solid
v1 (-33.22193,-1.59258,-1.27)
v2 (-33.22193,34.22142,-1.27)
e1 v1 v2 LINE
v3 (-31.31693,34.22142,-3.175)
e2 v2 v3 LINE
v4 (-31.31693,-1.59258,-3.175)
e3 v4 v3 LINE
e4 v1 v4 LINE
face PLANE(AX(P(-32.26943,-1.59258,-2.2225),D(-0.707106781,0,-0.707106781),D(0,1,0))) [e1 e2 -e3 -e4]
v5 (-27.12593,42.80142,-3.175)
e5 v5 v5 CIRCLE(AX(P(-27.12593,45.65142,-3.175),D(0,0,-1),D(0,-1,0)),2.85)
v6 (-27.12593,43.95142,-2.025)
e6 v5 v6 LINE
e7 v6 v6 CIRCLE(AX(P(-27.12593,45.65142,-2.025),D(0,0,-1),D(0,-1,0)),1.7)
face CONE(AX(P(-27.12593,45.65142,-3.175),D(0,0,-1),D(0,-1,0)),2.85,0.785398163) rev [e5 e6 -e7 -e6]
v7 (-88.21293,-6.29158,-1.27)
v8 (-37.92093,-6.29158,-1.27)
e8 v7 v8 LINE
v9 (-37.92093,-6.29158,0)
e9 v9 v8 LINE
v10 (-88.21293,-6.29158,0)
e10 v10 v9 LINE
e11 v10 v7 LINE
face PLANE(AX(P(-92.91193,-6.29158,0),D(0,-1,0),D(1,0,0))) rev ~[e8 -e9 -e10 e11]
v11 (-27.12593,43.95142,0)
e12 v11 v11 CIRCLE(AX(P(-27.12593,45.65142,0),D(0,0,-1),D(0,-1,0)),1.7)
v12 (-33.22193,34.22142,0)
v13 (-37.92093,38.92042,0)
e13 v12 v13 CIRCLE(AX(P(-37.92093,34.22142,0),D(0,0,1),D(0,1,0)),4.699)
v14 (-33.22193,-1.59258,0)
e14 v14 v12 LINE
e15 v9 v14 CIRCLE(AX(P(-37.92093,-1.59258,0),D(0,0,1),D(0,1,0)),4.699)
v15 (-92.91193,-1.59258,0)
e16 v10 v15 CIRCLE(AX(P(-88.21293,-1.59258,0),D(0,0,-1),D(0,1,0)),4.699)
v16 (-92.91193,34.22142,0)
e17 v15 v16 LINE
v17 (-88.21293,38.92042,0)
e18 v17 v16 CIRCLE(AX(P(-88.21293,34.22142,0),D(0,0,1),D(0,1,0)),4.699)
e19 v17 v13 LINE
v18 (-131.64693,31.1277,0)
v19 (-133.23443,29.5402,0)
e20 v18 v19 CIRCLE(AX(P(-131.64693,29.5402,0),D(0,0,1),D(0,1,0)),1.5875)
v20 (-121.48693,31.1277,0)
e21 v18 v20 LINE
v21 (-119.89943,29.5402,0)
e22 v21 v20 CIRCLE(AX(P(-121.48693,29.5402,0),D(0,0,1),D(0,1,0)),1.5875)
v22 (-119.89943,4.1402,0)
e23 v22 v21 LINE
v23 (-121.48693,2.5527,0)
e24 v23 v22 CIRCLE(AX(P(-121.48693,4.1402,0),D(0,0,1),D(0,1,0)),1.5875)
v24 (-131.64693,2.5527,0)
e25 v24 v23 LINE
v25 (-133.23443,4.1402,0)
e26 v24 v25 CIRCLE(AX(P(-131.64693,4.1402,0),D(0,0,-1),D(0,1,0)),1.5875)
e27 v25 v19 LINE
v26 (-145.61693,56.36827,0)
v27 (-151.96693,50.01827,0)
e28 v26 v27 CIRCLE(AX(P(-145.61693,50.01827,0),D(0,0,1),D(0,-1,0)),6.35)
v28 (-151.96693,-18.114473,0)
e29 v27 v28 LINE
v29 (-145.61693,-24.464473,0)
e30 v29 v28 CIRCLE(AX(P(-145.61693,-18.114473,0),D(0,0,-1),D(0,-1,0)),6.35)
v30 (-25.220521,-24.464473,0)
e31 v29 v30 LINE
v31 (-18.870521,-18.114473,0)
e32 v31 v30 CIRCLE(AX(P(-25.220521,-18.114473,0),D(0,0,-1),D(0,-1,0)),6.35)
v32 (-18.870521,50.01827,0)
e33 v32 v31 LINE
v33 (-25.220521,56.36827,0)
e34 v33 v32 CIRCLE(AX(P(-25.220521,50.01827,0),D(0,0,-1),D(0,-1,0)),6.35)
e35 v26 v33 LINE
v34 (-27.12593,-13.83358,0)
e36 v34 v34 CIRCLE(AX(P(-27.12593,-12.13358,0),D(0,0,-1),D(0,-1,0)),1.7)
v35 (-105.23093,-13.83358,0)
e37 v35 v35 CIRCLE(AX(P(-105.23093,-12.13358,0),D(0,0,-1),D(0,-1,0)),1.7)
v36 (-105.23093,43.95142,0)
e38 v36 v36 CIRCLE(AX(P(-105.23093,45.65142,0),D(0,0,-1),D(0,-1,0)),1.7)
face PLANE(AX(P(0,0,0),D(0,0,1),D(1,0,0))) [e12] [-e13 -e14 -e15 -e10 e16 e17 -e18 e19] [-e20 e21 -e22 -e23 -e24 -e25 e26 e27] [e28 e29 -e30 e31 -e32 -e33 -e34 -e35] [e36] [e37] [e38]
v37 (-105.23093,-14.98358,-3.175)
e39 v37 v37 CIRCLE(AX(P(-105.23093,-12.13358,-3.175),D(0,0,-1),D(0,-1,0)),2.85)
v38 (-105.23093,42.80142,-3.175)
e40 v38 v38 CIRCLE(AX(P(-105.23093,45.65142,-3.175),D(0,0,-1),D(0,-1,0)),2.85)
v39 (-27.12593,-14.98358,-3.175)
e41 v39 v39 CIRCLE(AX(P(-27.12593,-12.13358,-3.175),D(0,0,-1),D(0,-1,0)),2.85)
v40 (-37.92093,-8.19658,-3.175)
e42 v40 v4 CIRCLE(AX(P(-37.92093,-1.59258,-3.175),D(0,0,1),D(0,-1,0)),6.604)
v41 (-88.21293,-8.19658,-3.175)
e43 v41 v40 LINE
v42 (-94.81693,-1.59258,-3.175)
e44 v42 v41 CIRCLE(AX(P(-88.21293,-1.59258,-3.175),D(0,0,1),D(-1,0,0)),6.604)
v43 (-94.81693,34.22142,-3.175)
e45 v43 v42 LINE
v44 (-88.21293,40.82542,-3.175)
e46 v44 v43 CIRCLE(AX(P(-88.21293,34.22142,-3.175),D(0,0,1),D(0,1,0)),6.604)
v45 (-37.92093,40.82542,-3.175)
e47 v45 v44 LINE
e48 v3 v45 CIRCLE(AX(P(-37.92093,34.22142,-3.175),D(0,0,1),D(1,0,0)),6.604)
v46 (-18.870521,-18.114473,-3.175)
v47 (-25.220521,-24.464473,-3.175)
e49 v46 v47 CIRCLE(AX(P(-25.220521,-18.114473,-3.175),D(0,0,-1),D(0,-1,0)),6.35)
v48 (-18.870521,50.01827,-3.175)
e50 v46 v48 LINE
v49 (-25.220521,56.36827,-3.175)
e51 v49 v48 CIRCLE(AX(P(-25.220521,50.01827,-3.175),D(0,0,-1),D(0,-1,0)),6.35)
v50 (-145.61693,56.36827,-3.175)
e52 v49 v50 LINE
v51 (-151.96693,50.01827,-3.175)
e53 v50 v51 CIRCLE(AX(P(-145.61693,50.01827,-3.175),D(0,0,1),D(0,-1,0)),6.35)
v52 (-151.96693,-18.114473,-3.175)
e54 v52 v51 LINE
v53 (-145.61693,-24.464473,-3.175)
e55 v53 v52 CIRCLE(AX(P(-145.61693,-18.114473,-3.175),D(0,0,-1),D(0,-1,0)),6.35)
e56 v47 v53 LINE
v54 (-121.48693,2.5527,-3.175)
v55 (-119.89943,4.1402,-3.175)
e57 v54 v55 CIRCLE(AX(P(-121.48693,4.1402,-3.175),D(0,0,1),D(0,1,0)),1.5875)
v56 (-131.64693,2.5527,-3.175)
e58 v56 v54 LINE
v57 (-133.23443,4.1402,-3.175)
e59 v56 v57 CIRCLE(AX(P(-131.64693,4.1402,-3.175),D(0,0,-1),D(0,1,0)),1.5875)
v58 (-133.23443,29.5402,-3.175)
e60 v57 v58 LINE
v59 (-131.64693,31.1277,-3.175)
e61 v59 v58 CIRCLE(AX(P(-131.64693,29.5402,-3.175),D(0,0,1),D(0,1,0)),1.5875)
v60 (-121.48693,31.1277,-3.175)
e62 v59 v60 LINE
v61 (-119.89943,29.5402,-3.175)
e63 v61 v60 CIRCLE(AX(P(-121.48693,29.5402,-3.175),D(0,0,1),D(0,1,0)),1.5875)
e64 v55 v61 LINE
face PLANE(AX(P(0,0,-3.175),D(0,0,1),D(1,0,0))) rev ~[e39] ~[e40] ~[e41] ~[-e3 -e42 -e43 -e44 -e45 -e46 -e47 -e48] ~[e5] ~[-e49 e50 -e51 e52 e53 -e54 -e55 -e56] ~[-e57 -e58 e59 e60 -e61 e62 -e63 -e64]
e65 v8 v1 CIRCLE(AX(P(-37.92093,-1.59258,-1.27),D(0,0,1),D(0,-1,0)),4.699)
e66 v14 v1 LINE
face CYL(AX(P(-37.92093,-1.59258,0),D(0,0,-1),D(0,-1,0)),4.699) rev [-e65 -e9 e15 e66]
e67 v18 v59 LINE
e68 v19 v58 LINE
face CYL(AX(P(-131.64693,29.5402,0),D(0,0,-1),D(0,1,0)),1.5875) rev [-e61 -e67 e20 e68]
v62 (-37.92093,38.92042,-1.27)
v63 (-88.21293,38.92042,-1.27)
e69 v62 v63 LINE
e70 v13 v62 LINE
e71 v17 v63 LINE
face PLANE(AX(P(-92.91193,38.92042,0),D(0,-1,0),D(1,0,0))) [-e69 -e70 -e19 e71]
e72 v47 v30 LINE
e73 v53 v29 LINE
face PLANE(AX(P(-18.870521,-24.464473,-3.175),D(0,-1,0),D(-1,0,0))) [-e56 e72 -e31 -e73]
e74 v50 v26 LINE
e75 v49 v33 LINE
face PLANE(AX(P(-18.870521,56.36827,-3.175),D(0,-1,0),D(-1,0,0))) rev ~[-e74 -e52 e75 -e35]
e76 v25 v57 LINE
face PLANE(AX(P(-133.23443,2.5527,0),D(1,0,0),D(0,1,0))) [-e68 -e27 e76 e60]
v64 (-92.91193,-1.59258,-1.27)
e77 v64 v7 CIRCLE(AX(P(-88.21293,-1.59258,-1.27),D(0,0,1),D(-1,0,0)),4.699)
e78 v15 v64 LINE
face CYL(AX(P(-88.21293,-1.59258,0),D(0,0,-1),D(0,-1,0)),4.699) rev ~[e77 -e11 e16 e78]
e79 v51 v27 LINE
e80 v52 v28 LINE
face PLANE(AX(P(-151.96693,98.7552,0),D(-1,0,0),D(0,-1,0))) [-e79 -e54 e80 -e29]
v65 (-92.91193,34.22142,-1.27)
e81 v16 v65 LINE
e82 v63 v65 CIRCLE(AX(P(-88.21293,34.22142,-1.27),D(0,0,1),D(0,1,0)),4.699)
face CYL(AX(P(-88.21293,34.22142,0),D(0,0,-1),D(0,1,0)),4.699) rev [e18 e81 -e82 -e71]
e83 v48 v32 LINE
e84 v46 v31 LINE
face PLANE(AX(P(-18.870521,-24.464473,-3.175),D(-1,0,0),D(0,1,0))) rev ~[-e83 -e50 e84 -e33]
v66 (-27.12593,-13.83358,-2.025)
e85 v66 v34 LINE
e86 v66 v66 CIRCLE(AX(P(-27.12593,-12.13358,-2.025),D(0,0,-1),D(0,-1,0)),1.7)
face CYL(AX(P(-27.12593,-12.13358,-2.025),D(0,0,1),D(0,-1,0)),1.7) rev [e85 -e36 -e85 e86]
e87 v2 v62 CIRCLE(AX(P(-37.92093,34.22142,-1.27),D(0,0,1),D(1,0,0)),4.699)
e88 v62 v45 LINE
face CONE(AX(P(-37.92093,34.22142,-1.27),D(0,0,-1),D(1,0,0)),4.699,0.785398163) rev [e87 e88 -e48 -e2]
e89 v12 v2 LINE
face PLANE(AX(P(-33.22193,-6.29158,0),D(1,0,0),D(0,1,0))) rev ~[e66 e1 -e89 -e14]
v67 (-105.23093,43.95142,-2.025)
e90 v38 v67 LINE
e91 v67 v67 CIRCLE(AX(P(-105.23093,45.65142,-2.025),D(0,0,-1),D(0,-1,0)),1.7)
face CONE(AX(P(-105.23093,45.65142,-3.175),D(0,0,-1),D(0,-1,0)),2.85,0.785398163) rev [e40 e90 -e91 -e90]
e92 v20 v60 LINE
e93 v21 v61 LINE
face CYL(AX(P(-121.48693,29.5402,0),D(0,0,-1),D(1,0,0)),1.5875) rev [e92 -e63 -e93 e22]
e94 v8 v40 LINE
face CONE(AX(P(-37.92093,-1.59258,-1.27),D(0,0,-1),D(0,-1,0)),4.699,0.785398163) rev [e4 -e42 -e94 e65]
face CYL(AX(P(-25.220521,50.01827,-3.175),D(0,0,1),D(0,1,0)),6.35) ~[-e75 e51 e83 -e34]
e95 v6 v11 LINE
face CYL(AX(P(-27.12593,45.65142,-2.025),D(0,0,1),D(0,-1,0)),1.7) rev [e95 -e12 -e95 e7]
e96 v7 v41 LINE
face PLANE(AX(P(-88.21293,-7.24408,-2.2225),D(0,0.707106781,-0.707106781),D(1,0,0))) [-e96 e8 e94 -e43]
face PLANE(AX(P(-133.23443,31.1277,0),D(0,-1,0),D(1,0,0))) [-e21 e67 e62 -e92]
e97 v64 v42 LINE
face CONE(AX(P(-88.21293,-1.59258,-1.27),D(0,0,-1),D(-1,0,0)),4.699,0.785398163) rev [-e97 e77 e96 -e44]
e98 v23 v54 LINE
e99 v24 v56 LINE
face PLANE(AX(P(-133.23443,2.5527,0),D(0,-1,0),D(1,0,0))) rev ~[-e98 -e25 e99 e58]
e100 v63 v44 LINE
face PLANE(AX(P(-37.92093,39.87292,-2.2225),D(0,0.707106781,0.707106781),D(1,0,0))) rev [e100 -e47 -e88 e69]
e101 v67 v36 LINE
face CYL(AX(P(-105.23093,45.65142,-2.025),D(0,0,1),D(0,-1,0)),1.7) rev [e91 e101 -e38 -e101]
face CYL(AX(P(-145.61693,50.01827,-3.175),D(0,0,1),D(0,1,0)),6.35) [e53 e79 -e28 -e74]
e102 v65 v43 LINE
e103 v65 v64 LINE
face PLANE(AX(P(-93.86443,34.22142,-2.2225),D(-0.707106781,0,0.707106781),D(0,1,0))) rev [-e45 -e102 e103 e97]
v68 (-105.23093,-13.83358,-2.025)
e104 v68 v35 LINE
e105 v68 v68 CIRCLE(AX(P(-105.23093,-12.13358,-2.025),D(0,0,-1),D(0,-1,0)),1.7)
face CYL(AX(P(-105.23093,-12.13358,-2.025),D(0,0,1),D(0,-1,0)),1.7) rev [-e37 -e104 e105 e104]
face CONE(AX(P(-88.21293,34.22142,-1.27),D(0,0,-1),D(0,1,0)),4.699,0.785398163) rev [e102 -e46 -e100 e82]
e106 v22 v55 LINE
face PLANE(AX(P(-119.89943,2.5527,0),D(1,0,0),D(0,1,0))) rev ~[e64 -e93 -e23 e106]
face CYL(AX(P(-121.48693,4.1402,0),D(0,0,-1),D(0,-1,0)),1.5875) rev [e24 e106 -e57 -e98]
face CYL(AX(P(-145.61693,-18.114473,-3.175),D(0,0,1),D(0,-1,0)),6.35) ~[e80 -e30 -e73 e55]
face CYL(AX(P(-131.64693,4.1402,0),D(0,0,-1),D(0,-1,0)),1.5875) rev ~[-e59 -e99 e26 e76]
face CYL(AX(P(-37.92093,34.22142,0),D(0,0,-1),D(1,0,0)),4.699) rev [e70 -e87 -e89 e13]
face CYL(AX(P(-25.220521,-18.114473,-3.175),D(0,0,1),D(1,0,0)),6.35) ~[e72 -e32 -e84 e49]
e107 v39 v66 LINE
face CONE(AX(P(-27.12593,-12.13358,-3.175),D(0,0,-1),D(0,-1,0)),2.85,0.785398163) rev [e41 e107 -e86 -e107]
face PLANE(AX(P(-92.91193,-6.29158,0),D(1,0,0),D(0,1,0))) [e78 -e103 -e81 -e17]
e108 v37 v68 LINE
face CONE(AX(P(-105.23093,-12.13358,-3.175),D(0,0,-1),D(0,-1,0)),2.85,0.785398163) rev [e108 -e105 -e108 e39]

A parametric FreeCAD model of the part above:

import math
import FreeCAD as App
import Part
import Sketcher
Q = App.Units.Quantity


def edges_at(feature, points):
    """Names of the edges that pass closest to the given points."""
    edges = feature.Shape.Edges
    near = lambda p: min(range(len(edges)), key=lambda i: edges[i].distToShape(Part.Vertex(*p))[0])
    return sorted({f"Edge{near(p) + 1}" for p in points})


def add_polygon(sketch, points):
    """Adds a closed chain of lines whose ends are joined by coincident constraints."""
    first, n = sketch.GeometryCount, len(points)
    for a, b in zip(points, points[1:] + points[:1]):
        sketch.addGeometry(Part.LineSegment(App.Vector(*a, 0), App.Vector(*b, 0)), False)
    for i in range(n):
        sketch.addConstraint(Sketcher.Constraint("Coincident", first + i, 2, first + (i + 1) % n, 1))

doc = App.newDocument("Part")
body = doc.addObject("PartDesign::Body", "Body")

# Sketch on XY plane
sketch1 = body.newObject("Sketcher::SketchObject", "Sketch")
sketch1.AttachmentSupport = (doc.getObject("XY_Plane"), [""])
sketch1.MapMode = "FlatFace"
sketch1.addGeometry(Part.LineSegment(App.Vector(-151.96693, 98.7552, 0), App.Vector(-151.96693, -98.7552, 0)), False)
sketch1.addGeometry(Part.ArcOfCircle(Part.Circle(App.Vector(-135.45693, -98.7552, 0), App.Vector(0, 0, 1), 16.51), math.radians(-180), math.radians(-90)), False)
sketch1.addGeometry(Part.LineSegment(App.Vector(-135.45693, -115.2652, 0), App.Vector(135.45693, -115.2652, 0)), False)
sketch1.addGeometry(Part.ArcOfCircle(Part.Circle(App.Vector(135.45693, -98.7552, 0), App.Vector(0, 0, 1), 16.51), math.radians(-90), math.radians(0)), False)
sketch1.addGeometry(Part.LineSegment(App.Vector(151.96693, -98.7552, 0), App.Vector(151.96693, 98.7552, 0)), False)
sketch1.addGeometry(Part.ArcOfCircle(Part.Circle(App.Vector(135.45693, 98.7552, 0), App.Vector(0, 0, 1), 16.51), math.radians(0), math.radians(90)), False)
sketch1.addGeometry(Part.LineSegment(App.Vector(135.45693, 115.2652, 0), App.Vector(-135.45693, 115.2652, 0)), False)
sketch1.addGeometry(Part.ArcOfCircle(Part.Circle(App.Vector(-135.45693, 98.7552, 0), App.Vector(0, 0, 1), 16.51), math.radians(90), math.radians(180)), False)
sketch1.addConstraint(Sketcher.Constraint("Tangent", 0, 2, 1, 1))
sketch1.addConstraint(Sketcher.Constraint("Tangent", 1, 2, 2, 1))
sketch1.addConstraint(Sketcher.Constraint("Tangent", 2, 2, 3, 1))
sketch1.addConstraint(Sketcher.Constraint("Tangent", 3, 2, 4, 1))
sketch1.addConstraint(Sketcher.Constraint("Tangent", 4, 2, 5, 1))
sketch1.addConstraint(Sketcher.Constraint("Tangent", 5, 2, 6, 1))
sketch1.addConstraint(Sketcher.Constraint("Tangent", 6, 2, 7, 1))
sketch1.addConstraint(Sketcher.Constraint("Tangent", 7, 2, 0, 1))
sketch1.addConstraint(Sketcher.Constraint("Vertical", 0))
sketch1.addConstraint(Sketcher.Constraint("Horizontal", 2))
sketch1.addConstraint(Sketcher.Constraint("Vertical", 4))
sketch1.addConstraint(Sketcher.Constraint("Horizontal", 6))
sketch1.addConstraint(Sketcher.Constraint("Equal", 1, 3))
sketch1.addConstraint(Sketcher.Constraint("Equal", 3, 5))
sketch1.addConstraint(Sketcher.Constraint("Equal", 5, 7))
sketch1.addConstraint(Sketcher.Constraint("Symmetric", 1, 3, 5, 3, -1, 1))
sketch1.addConstraint(Sketcher.Constraint("Radius", 1, Q("0.65 in")))
sketch1.addConstraint(Sketcher.Constraint("DistanceY", 0, 2, 0, 1, Q("7.776 in")))
sketch1.addConstraint(Sketcher.Constraint("DistanceX", 2, 1, 2, 2, Q("10.6659 in")))
pad1 = body.newObject("PartDesign::Pad", "Pad")
pad1.Profile = sketch1
pad1.Length = Q("0.125 in")
pad1.Reversed = True

# Sketch on YZ plane
sketch2 = body.newObject("Sketcher::SketchObject", "Sketch001")
sketch2.AttachmentSupport = (doc.getObject("YZ_Plane"), [""])
sketch2.MapMode = "FlatFace"
sketch2.AttachmentOffset = App.Placement(App.Vector(0, 0, 3.98 * 25.4), App.Rotation())
add_polygon(sketch2, [(104.648, -3.175), (104.648, 0), (102.49535, 0), (102.49535, -2.157298), (101.2825, -3.175)])  # lines 0-4
sketch2.addGeometry(Part.LineSegment(App.Vector(104.648, 0, 0), App.Vector(104.648, -3.175, 0)), True)  # axis
sketch2.addConstraint(Sketcher.Constraint("Vertical", 0))
sketch2.addConstraint(Sketcher.Constraint("Horizontal", 1))
sketch2.addConstraint(Sketcher.Constraint("Vertical", 2))
sketch2.addConstraint(Sketcher.Constraint("Horizontal", 4))
sketch2.addConstraint(Sketcher.Constraint("Vertical", 5))
sketch2.addConstraint(Sketcher.Constraint("Coincident", 5, 1, 0, 2))
sketch2.addConstraint(Sketcher.Constraint("PointOnObject", 0, 2, -1))
sketch2.addConstraint(Sketcher.Constraint("Horizontal", 3, 2, 5, 2))
sketch2.addConstraint(Sketcher.Constraint("Angle", 3, Q("-140 deg")))
sketch2.addConstraint(Sketcher.Constraint("DistanceY", 0, 1, 0, 2, Q("0.125 in")))
sketch2.addConstraint(Sketcher.Constraint("DistanceX", -1, 1, 0, 2, Q("4.12 in")))
sketch2.addConstraint(Sketcher.Constraint("DistanceX", 4, 1, 4, 2, Q("0.1325 in")))
sketch2.addConstraint(Sketcher.Constraint("DistanceY", 2, 2, 2, 1, 2.157298))
groove = body.newObject("PartDesign::Groove", "Groove")
groove.Profile = sketch2
groove.ReferenceAxis = (sketch2, ["Axis0"])
groove.Angle = 360
doc.recompute()

linearpattern = body.newObject("PartDesign::LinearPattern", "LinearPattern")
linearpattern.Originals = [groove]
linearpattern.Direction = (doc.getObject("X_Axis"), [""])
linearpattern.Mode = "offset"
linearpattern.Offset = Q("7.96 in")
linearpattern.Occurrences = 2
linearpattern.Reversed = True
body.Tip = linearpattern
doc.recompute()

datumline = body.newObject("PartDesign::Line", "DatumLine")
datumline.Placement = App.Placement(App.Vector(0, 0, 0), App.Rotation(App.Vector(0, 0, 1), App.Vector(-0.985857411, -0.167586294, 0)))
linearpattern2 = body.newObject("PartDesign::LinearPattern", "LinearPattern001")
linearpattern2.Originals = [groove]
linearpattern2.Direction = (datumline, [""])
linearpattern2.Mode = "offset"
linearpattern2.Offset = 245.533205
linearpattern2.Occurrences = 2
body.Tip = linearpattern2
doc.recompute()

datumline2 = body.newObject("PartDesign::Line", "DatumLine001")
datumline2.Placement = App.Placement(App.Vector(0, 0, 0), App.Rotation(App.Vector(0, 0, 1), App.Vector(-0.821290047, -0.570510875, 0)))
linearpattern3 = body.newObject("PartDesign::LinearPattern", "LinearPattern002")
linearpattern3.Originals = [groove]
linearpattern3.Direction = (datumline2, [""])
linearpattern3.Mode = "offset"
linearpattern3.Offset = 294.732331
linearpattern3.Occurrences = 2
body.Tip = linearpattern3
doc.recompute()

linearpattern4 = body.newObject("PartDesign::LinearPattern", "LinearPattern003")
linearpattern4.Originals = [groove]
linearpattern4.Direction = (doc.getObject("Y_Axis"), [""])
linearpattern4.Mode = "offset"
linearpattern4.Offset = Q("8.24 in")
linearpattern4.Occurrences = 2
linearpattern4.Reversed = True
body.Tip = linearpattern4
doc.recompute()

datumline3 = body.newObject("PartDesign::Line", "DatumLine002")
datumline3.Placement = App.Placement(App.Vector(0, 0, 0), App.Rotation(App.Vector(0, 0, 1), App.Vector(0.230752413, -0.973012499, 0)))
linearpattern5 = body.newObject("PartDesign::LinearPattern", "LinearPattern004")
linearpattern5.Originals = [groove]
linearpattern5.Direction = (datumline3, [""])
linearpattern5.Mode = "offset"
linearpattern5.Offset = 172.811757
linearpattern5.Occurrences = 2
body.Tip = linearpattern5
doc.recompute()

datumline4 = body.newObject("PartDesign::Line", "DatumLine003")
datumline4.Placement = App.Placement(App.Vector(0, 0, 0), App.Rotation(App.Vector(0, 0, 1), App.Vector(0.695926692, -0.718112832, 0)))
linearpattern6 = body.newObject("PartDesign::LinearPattern", "LinearPattern005")
linearpattern6.Originals = [groove]
linearpattern6.Direction = (datumline4, [""])
linearpattern6.Mode = "offset"
linearpattern6.Offset = 57.300188
linearpattern6.Occurrences = 2
body.Tip = linearpattern6
doc.recompute()

datumline5 = body.newObject("PartDesign::Line", "DatumLine004")
datumline5.Placement = App.Placement(App.Vector(0, 0, 0), App.Rotation(App.Vector(0, 0, 1), App.Vector(-0.694781413, -0.71922096, 0)))
linearpattern7 = body.newObject("PartDesign::LinearPattern", "LinearPattern006")
linearpattern7.Originals = [groove]
linearpattern7.Direction = (datumline5, [""])
linearpattern7.Mode = "offset"
linearpattern7.Offset = 291.003755
linearpattern7.Occurrences = 2
body.Tip = linearpattern7
doc.recompute()

datumline6 = body.newObject("PartDesign::Line", "DatumLine005")
datumline6.Placement = App.Placement(App.Vector(0, 0, 0), App.Rotation(App.Vector(0, 0, 1), App.Vector(-0.434932419, -0.900463098, 0)))
linearpattern8 = body.newObject("PartDesign::LinearPattern", "LinearPattern007")
linearpattern8.Originals = [groove]
linearpattern8.Direction = (datumline6, [""])
linearpattern8.Mode = "offset"
linearpattern8.Offset = 232.431513
linearpattern8.Occurrences = 2
body.Tip = linearpattern8
doc.recompute()

linearpattern9 = body.newObject("PartDesign::LinearPattern", "LinearPattern008")
linearpattern9.Originals = [groove]
linearpattern9.Direction = (doc.getObject("X_Axis"), [""])
linearpattern9.Mode = "offset"
linearpattern9.Offset = Q("3.98 in")
linearpattern9.Occurrences = 2
linearpattern9.Reversed = True
body.Tip = linearpattern9

# Sketch on XY plane
sketch3 = body.newObject("Sketcher::SketchObject", "Sketch002")
sketch3.AttachmentSupport = (doc.getObject("XY_Plane"), [""])
sketch3.MapMode = "FlatFace"
sketch3.addGeometry(Part.Circle(App.Vector(104.26573, 42.164, 0), App.Vector(0, 0, 1), 24.765), False)
sketch3.addConstraint(Sketcher.Constraint("Diameter", 0, Q("1.95 in")))
sketch3.addConstraint(Sketcher.Constraint("DistanceY", -1, 1, 0, 3, Q("1.66 in")))
sketch3.addConstraint(Sketcher.Constraint("DistanceX", -1, 1, 0, 3, 104.26573))
pocket1 = body.newObject("PartDesign::Pocket", "Pocket")
pocket1.Profile = sketch3
pocket1.Type = "ThroughAll"

# Sketch on XY plane
sketch4 = body.newObject("Sketcher::SketchObject", "Sketch003")
sketch4.AttachmentSupport = (doc.getObject("XY_Plane"), [""])
sketch4.MapMode = "FlatFace"
add_polygon(sketch4, [(-92.91193, 38.92042), (-92.91193, -6.29158), (-33.22193, -6.29158), (-33.22193, 38.92042)])  # lines 0-3
sketch4.addConstraint(Sketcher.Constraint("Vertical", 0))
sketch4.addConstraint(Sketcher.Constraint("Horizontal", 1))
sketch4.addConstraint(Sketcher.Constraint("Vertical", 2))
sketch4.addConstraint(Sketcher.Constraint("Horizontal", 3))
sketch4.addConstraint(Sketcher.Constraint("DistanceX", 1, 1, 1, 2, Q("2.35 in")))
sketch4.addConstraint(Sketcher.Constraint("DistanceY", 0, 2, 0, 1, Q("1.78 in")))
sketch4.addConstraint(Sketcher.Constraint("DistanceY", 0, 2, -1, 1, Q("0.2477 in")))
sketch4.addConstraint(Sketcher.Constraint("DistanceX", 0, 2, -1, 1, 92.91193))
pocket2 = body.newObject("PartDesign::Pocket", "Pocket001")
pocket2.Profile = sketch4
pocket2.Type = "ThroughAll"
doc.recompute()

fillet = body.newObject("PartDesign::Fillet", "Fillet")
fillet.Base = (pocket2, edges_at(pocket2, [
    (-92.912, -6.292, -1.587),
    (-92.912, 38.92, -1.587),
    (-33.222, 38.92, -1.587),
    (-33.222, -6.292, -1.587),
]))
fillet.Radius = Q("0.185 in")
doc.recompute()

chamfer = body.newObject("PartDesign::Chamfer", "Chamfer")
chamfer.Base = (fillet, edges_at(fillet, [
    (-33.222, 16.314, -3.175),
    (-63.067, -6.292, -3.175),
    (-92.912, 16.314, -3.175),
    (-63.067, 38.92, -3.175),
    (-34.598, -4.915, -3.175),
    (-91.536, -4.915, -3.175),
    (-91.536, 37.544, -3.175),
    (-34.598, 37.544, -3.175),
]))
chamfer.Size = Q("0.075 in")

# Sketch on YZ plane
sketch5 = body.newObject("Sketcher::SketchObject", "Sketch004")
sketch5.AttachmentSupport = (doc.getObject("YZ_Plane"), [""])
sketch5.MapMode = "FlatFace"
sketch5.AttachmentOffset = App.Placement(App.Vector(0, 0, 79.570026), App.Rotation())
add_polygon(sketch5, [(66.859704, -3.175), (66.859704, 0), (65.059704, 0), (65.059704, -2.125), (64.009704, -3.175)])  # lines 0-4
sketch5.addGeometry(Part.LineSegment(App.Vector(66.859704, 0, 0), App.Vector(66.859704, -3.175, 0)), True)  # axis
sketch5.addConstraint(Sketcher.Constraint("Vertical", 0))
sketch5.addConstraint(Sketcher.Constraint("Horizontal", 1))
sketch5.addConstraint(Sketcher.Constraint("Vertical", 2))
sketch5.addConstraint(Sketcher.Constraint("Horizontal", 4))
sketch5.addConstraint(Sketcher.Constraint("Vertical", 5))
sketch5.addConstraint(Sketcher.Constraint("Coincident", 5, 1, 0, 2))
sketch5.addConstraint(Sketcher.Constraint("PointOnObject", 0, 2, -1))
sketch5.addConstraint(Sketcher.Constraint("Horizontal", 3, 2, 5, 2))
sketch5.addConstraint(Sketcher.Constraint("Angle", 3, Q("-135 deg")))
sketch5.addConstraint(Sketcher.Constraint("DistanceY", 0, 1, 0, 2, Q("0.125 in")))
sketch5.addConstraint(Sketcher.Constraint("DistanceX", 1, 2, 1, 1, 1.8))
sketch5.addConstraint(Sketcher.Constraint("DistanceX", 4, 1, 4, 2, 2.85))
sketch5.addConstraint(Sketcher.Constraint("DistanceX", -1, 1, 0, 2, 66.859704))
groove2 = body.newObject("PartDesign::Groove", "Groove001")
groove2.Profile = sketch5
groove2.ReferenceAxis = (sketch5, ["Axis0"])
groove2.Angle = 360
doc.recompute()

linearpattern10 = body.newObject("PartDesign::LinearPattern", "LinearPattern009")
linearpattern10.Originals = [groove2]
linearpattern10.Direction = (doc.getObject("X_Axis"), [""])
linearpattern10.Mode = "offset"
linearpattern10.Offset = 49.391409
linearpattern10.Occurrences = 2
body.Tip = linearpattern10
doc.recompute()

datumline7 = body.newObject("PartDesign::Line", "DatumLine006")
datumline7.Placement = App.Placement(App.Vector(0, 0, 0), App.Rotation(App.Vector(0, 0, 1), App.Vector(0.707106781, -0.707106781, 0)))
linearpattern11 = body.newObject("PartDesign::LinearPattern", "LinearPattern010")
linearpattern11.Originals = [groove2]
linearpattern11.Direction = (datumline7, [""])
linearpattern11.Mode = "offset"
linearpattern11.Offset = Q("2.75 in")
linearpattern11.Occurrences = 2
body.Tip = linearpattern11
doc.recompute()

linearpattern12 = body.newObject("PartDesign::LinearPattern", "LinearPattern011")
linearpattern12.Originals = [groove2]
linearpattern12.Direction = (doc.getObject("Y_Axis"), [""])
linearpattern12.Mode = "offset"
linearpattern12.Offset = 49.391409
linearpattern12.Occurrences = 2
linearpattern12.Reversed = True
body.Tip = linearpattern12

# Sketch on XY plane
sketch6 = body.newObject("Sketcher::SketchObject", "Sketch005")
sketch6.AttachmentSupport = (doc.getObject("XY_Plane"), [""])
sketch6.MapMode = "FlatFace"
sketch6.AttachmentOffset = App.Placement(App.Vector(0, 0, -0.125 * 25.4), App.Rotation())
sketch6.addGeometry(Part.Circle(App.Vector(-17.67693, -38.5952, 0), App.Vector(0, 0, 1), 1.8), False)
sketch6.addGeometry(Part.Circle(App.Vector(-117.67693, -38.5952, 0), App.Vector(0, 0, 1), 1.8), False)
sketch6.addGeometry(Part.Circle(App.Vector(-117.67693, -88.5952, 0), App.Vector(0, 0, 1), 1.8), False)
sketch6.addGeometry(Part.Circle(App.Vector(-17.67693, -88.5952, 0), App.Vector(0, 0, 1), 1.8), False)
sketch6.addConstraint(Sketcher.Constraint("Equal", 0, 1))
sketch6.addConstraint(Sketcher.Constraint("Equal", 1, 2))
sketch6.addConstraint(Sketcher.Constraint("Equal", 2, 3))
sketch6.addConstraint(Sketcher.Constraint("Horizontal", 0, 3, 1, 3))
sketch6.addConstraint(Sketcher.Constraint("Horizontal", 2, 3, 3, 3))
sketch6.addConstraint(Sketcher.Constraint("Vertical", 1, 3, 2, 3))
sketch6.addConstraint(Sketcher.Constraint("Vertical", 0, 3, 3, 3))
sketch6.addConstraint(Sketcher.Constraint("Diameter", 0, 3.6))
sketch6.addConstraint(Sketcher.Constraint("DistanceY", 2, 3, -1, 1, Q("3.488 in")))
sketch6.addConstraint(Sketcher.Constraint("DistanceY", 0, 3, -1, 1, 38.5952))
sketch6.addConstraint(Sketcher.Constraint("DistanceX", 1, 3, 0, 3, 100.0))
sketch6.addConstraint(Sketcher.Constraint("DistanceX", 0, 3, -1, 1, 17.67693))
doc.recompute()
hole = body.newObject("PartDesign::Hole", "Hole")
hole.Profile = sketch6
hole.ThreadType = "None"
hole.Diameter = 3.6
hole.DepthType = "ThroughAll"
hole.HoleCutType = "Countersink"
hole.HoleCutDiameter = 5.7
hole.HoleCutCountersinkAngle = 90
hole.Reversed = True

# Sketch on YZ plane
sketch7 = body.newObject("Sketcher::SketchObject", "Sketch006")
sketch7.AttachmentSupport = (doc.getObject("YZ_Plane"), [""])
sketch7.MapMode = "FlatFace"
sketch7.AttachmentOffset = App.Placement(App.Vector(0, 0, 25.25193), App.Rotation())
add_polygon(sketch7, [(-75.5297, -3.175), (-75.5297, 0), (-77.3297, 0), (-77.3297, -2.125), (-78.3797, -3.175)])  # lines 0-4
sketch7.addGeometry(Part.LineSegment(App.Vector(-75.5297, 0, 0), App.Vector(-75.5297, -3.175, 0)), True)  # axis
sketch7.addConstraint(Sketcher.Constraint("Vertical", 0))
sketch7.addConstraint(Sketcher.Constraint("Horizontal", 1))
sketch7.addConstraint(Sketcher.Constraint("Vertical", 2))
sketch7.addConstraint(Sketcher.Constraint("Horizontal", 4))
sketch7.addConstraint(Sketcher.Constraint("Vertical", 5))
sketch7.addConstraint(Sketcher.Constraint("Coincident", 5, 1, 0, 2))
sketch7.addConstraint(Sketcher.Constraint("PointOnObject", 0, 2, -1))
sketch7.addConstraint(Sketcher.Constraint("Horizontal", 3, 2, 5, 2))
sketch7.addConstraint(Sketcher.Constraint("Angle", 3, Q("-135 deg")))
sketch7.addConstraint(Sketcher.Constraint("DistanceY", 0, 1, 0, 2, Q("0.125 in")))
sketch7.addConstraint(Sketcher.Constraint("DistanceX", 1, 2, 1, 1, 1.8))
sketch7.addConstraint(Sketcher.Constraint("DistanceX", 4, 1, 4, 2, 2.85))
sketch7.addConstraint(Sketcher.Constraint("DistanceX", 0, 2, -1, 1, 75.5297))
groove3 = body.newObject("PartDesign::Groove", "Groove002")
groove3.Profile = sketch7
groove3.ReferenceAxis = (sketch7, ["Axis0"])
groove3.Angle = 360
doc.recompute()

linearpattern13 = body.newObject("PartDesign::LinearPattern", "LinearPattern012")
linearpattern13.Originals = [groove3]
linearpattern13.Direction = (doc.getObject("X_Axis"), [""])
linearpattern13.Mode = "offset"
linearpattern13.Offset = Q("2.2323 in")
linearpattern13.Occurrences = 2
body.Tip = linearpattern13
doc.recompute()

datumline8 = body.newObject("PartDesign::Line", "DatumLine007")
datumline8.Placement = App.Placement(App.Vector(0, 0, 0), App.Rotation(App.Vector(0, 0, 1), App.Vector(0.998331553, -0.057741763, 0)))
linearpattern14 = body.newObject("PartDesign::LinearPattern", "LinearPattern013")
linearpattern14.Originals = [groove3]
linearpattern14.Direction = (datumline8, [""])
linearpattern14.Mode = "offset"
linearpattern14.Offset = 102.005891
linearpattern14.Occurrences = 2
body.Tip = linearpattern14
doc.recompute()

datumline9 = body.newObject("PartDesign::Line", "DatumLine008")
datumline9.Placement = App.Placement(App.Vector(0, 0, 0), App.Rotation(App.Vector(0, 0, 1), App.Vector(0.931982325, 0.362503718, 0)))
linearpattern15 = body.newObject("PartDesign::LinearPattern", "LinearPattern014")
linearpattern15.Originals = [groove3]
linearpattern15.Direction = (datumline9, [""])
linearpattern15.Mode = "offset"
linearpattern15.Offset = 109.267845
linearpattern15.Occurrences = 2
body.Tip = linearpattern15
doc.recompute()

datumline10 = body.newObject("PartDesign::Line", "DatumLine009")
datumline10.Placement = App.Placement(App.Vector(0, 0, 0), App.Rotation(App.Vector(0, 0, 1), App.Vector(0.995961109, -0.08978569, 0)))
linearpattern16 = body.newObject("PartDesign::LinearPattern", "LinearPattern015")
linearpattern16.Originals = [groove3]
linearpattern16.Direction = (datumline10, [""])
linearpattern16.Mode = "offset"
linearpattern16.Offset = 65.600654
linearpattern16.Occurrences = 2
body.Tip = linearpattern16
doc.recompute()

datumline11 = body.newObject("PartDesign::Line", "DatumLine010")
datumline11.Placement = App.Placement(App.Vector(0, 0, 0), App.Rotation(App.Vector(0, 0, 1), App.Vector(0.855124691, 0.518422379, 0)))
linearpattern17 = body.newObject("PartDesign::LinearPattern", "LinearPattern016")
linearpattern17.Originals = [groove3]
linearpattern17.Direction = (datumline11, [""])
linearpattern17.Mode = "offset"
linearpattern17.Offset = 76.404881
linearpattern17.Occurrences = 2
body.Tip = linearpattern17
doc.recompute()

datumline12 = body.newObject("PartDesign::Line", "DatumLine011")
datumline12.Placement = App.Placement(App.Vector(0, 0, 0), App.Rotation(App.Vector(0, 0, 1), App.Vector(0.268208434, 0.963360906, 0)))
linearpattern18 = body.newObject("PartDesign::LinearPattern", "LinearPattern017")
linearpattern18.Originals = [groove3]
linearpattern18.Direction = (datumline12, [""])
linearpattern18.Mode = "offset"
linearpattern18.Offset = Q("1.0789 in")
linearpattern18.Occurrences = 2
body.Tip = linearpattern18
doc.recompute()

datumline13 = body.newObject("PartDesign::Line", "DatumLine012")
datumline13.Placement = App.Placement(App.Vector(0, 0, 0), App.Rotation(App.Vector(0, 0, 1), App.Vector(0.881760388, 0.471697591, 0)))
linearpattern19 = body.newObject("PartDesign::LinearPattern", "LinearPattern018")
linearpattern19.Originals = [groove3]
linearpattern19.Direction = (datumline13, [""])
linearpattern19.Mode = "offset"
linearpattern19.Offset = 55.968062
linearpattern19.Occurrences = 2
body.Tip = linearpattern19

# Sketch on XY plane
sketch8 = body.newObject("Sketcher::SketchObject", "Sketch007")
sketch8.AttachmentSupport = (doc.getObject("XY_Plane"), [""])
sketch8.MapMode = "FlatFace"
add_polygon(sketch8, [(-133.23443, 31.1277), (-133.23443, 2.5527), (-119.89943, 2.5527), (-119.89943, 31.1277)])  # lines 0-3
sketch8.addConstraint(Sketcher.Constraint("Vertical", 0))
sketch8.addConstraint(Sketcher.Constraint("Horizontal", 1))
sketch8.addConstraint(Sketcher.Constraint("Vertical", 2))
sketch8.addConstraint(Sketcher.Constraint("Horizontal", 3))
sketch8.addConstraint(Sketcher.Constraint("DistanceX", 1, 1, 1, 2, Q("0.525 in")))
sketch8.addConstraint(Sketcher.Constraint("DistanceY", 0, 2, 0, 1, Q("1.125 in")))
sketch8.addConstraint(Sketcher.Constraint("DistanceY", -1, 1, 0, 2, Q("0.1005 in")))
sketch8.addConstraint(Sketcher.Constraint("DistanceX", 0, 2, -1, 1, 133.23443))
pocket3 = body.newObject("PartDesign::Pocket", "Pocket002")
pocket3.Profile = sketch8
pocket3.Type = "ThroughAll"
doc.recompute()

fillet2 = body.newObject("PartDesign::Fillet", "Fillet001")
fillet2.Base = (pocket3, edges_at(pocket3, [
    (-133.234, 2.553, -1.587),
    (-133.234, 31.128, -1.587),
    (-119.899, 31.128, -1.587),
    (-119.899, 2.553, -1.587),
]))
fillet2.Radius = Q("0.0625 in")

# Sketch on XY plane
sketch9 = body.newObject("Sketcher::SketchObject", "Sketch008")
sketch9.AttachmentSupport = (doc.getObject("XY_Plane"), [""])
sketch9.MapMode = "FlatFace"
sketch9.AttachmentOffset = App.Placement(App.Vector(0, 0, -0.125 * 25.4), App.Rotation())
sketch9.addGeometry(Part.Circle(App.Vector(-12.26693, 3.61442, 0), App.Vector(0, 0, 1), 4), False)
sketch9.addGeometry(Part.Circle(App.Vector(-12.26693, 29.01442, 0), App.Vector(0, 0, 1), 4), False)
sketch9.addConstraint(Sketcher.Constraint("Equal", 0, 1))
sketch9.addConstraint(Sketcher.Constraint("Vertical", 0, 3, 1, 3))
sketch9.addConstraint(Sketcher.Constraint("DistanceY", 0, 3, 1, 3, Q("1 in")))
sketch9.addConstraint(Sketcher.Constraint("Diameter", 0, 8.0))
sketch9.addConstraint(Sketcher.Constraint("DistanceY", -1, 1, 0, 3, Q("0.1423 in")))
sketch9.addConstraint(Sketcher.Constraint("DistanceX", 0, 3, -1, 1, 12.26693))
doc.recompute()
hole2 = body.newObject("PartDesign::Hole", "Hole001")
hole2.Profile = sketch9
hole2.ThreadType = "None"
hole2.Diameter = 8
hole2.DepthType = "ThroughAll"
hole2.Reversed = True

# Sketch on YZ plane
sketch10 = body.newObject("Sketcher::SketchObject", "Sketch009")
sketch10.AttachmentSupport = (doc.getObject("YZ_Plane"), [""])
sketch10.MapMode = "FlatFace"
sketch10.AttachmentOffset = App.Placement(App.Vector(0, 0, -105.23093), App.Rotation())
add_polygon(sketch10, [(45.65142, -3.175), (45.65142, 0), (43.95142, 0), (43.95142, -2.025), (42.80142, -3.175)])  # lines 0-4
sketch10.addGeometry(Part.LineSegment(App.Vector(45.65142, 0, 0), App.Vector(45.65142, -3.175, 0)), True)  # axis
sketch10.addConstraint(Sketcher.Constraint("Vertical", 0))
sketch10.addConstraint(Sketcher.Constraint("Horizontal", 1))
sketch10.addConstraint(Sketcher.Constraint("Vertical", 2))
sketch10.addConstraint(Sketcher.Constraint("Horizontal", 4))
sketch10.addConstraint(Sketcher.Constraint("Vertical", 5))
sketch10.addConstraint(Sketcher.Constraint("Coincident", 5, 1, 0, 2))
sketch10.addConstraint(Sketcher.Constraint("PointOnObject", 0, 2, -1))
sketch10.addConstraint(Sketcher.Constraint("Horizontal", 3, 2, 5, 2))
sketch10.addConstraint(Sketcher.Constraint("Angle", 3, Q("-135 deg")))
sketch10.addConstraint(Sketcher.Constraint("DistanceY", 0, 1, 0, 2, Q("0.125 in")))
sketch10.addConstraint(Sketcher.Constraint("DistanceX", 1, 2, 1, 1, 1.7))
sketch10.addConstraint(Sketcher.Constraint("DistanceX", 4, 1, 4, 2, 2.85))
sketch10.addConstraint(Sketcher.Constraint("DistanceX", -1, 1, 0, 2, Q("1.7973 in")))
groove4 = body.newObject("PartDesign::Groove", "Groove003")
groove4.Profile = sketch10
groove4.ReferenceAxis = (sketch10, ["Axis0"])
groove4.Angle = 360
doc.recompute()

linearpattern20 = body.newObject("PartDesign::LinearPattern", "LinearPattern019")
linearpattern20.Originals = [groove4]
linearpattern20.Direction = (doc.getObject("X_Axis"), [""])
linearpattern20.Mode = "offset"
linearpattern20.Offset = Q("3.075 in")
linearpattern20.Occurrences = 2
body.Tip = linearpattern20
doc.recompute()

datumline14 = body.newObject("PartDesign::Line", "DatumLine013")
datumline14.Placement = App.Placement(App.Vector(0, 0, 0), App.Rotation(App.Vector(0, 0, 1), App.Vector(0.803904398, -0.594758538, 0)))
linearpattern21 = body.newObject("PartDesign::LinearPattern", "LinearPattern020")
linearpattern21.Originals = [groove4]
linearpattern21.Direction = (datumline14, [""])
linearpattern21.Mode = "offset"
linearpattern21.Offset = 97.157075
linearpattern21.Occurrences = 2
body.Tip = linearpattern21
doc.recompute()

linearpattern22 = body.newObject("PartDesign::LinearPattern", "LinearPattern021")
linearpattern22.Originals = [groove4]
linearpattern22.Direction = (doc.getObject("Y_Axis"), [""])
linearpattern22.Mode = "offset"
linearpattern22.Offset = Q("2.275 in")
linearpattern22.Occurrences = 2
linearpattern22.Reversed = True
body.Tip = linearpattern22

# Sketch on XY plane
sketch11 = body.newObject("Sketcher::SketchObject", "Sketch010")
sketch11.AttachmentSupport = (doc.getObject("XY_Plane"), [""])
sketch11.MapMode = "FlatFace"
sketch11.AttachmentOffset = App.Placement(App.Vector(0, 0, -0.125 * 25.4), App.Rotation())
add_polygon(sketch11, [(191.115, 154.413), (191.115, -154.413), (-191.115, -154.413), (-191.115, 154.413)])  # lines 0-3
add_polygon(sketch11, [(-151.96693, -24.464473), (-18.870521, -24.464473), (-18.870521, 56.36827), (-151.96693, 56.36827)])  # lines 4-7
sketch11.addConstraint(Sketcher.Constraint("Vertical", 0))
sketch11.addConstraint(Sketcher.Constraint("Horizontal", 1))
sketch11.addConstraint(Sketcher.Constraint("Vertical", 2))
sketch11.addConstraint(Sketcher.Constraint("Horizontal", 3))
sketch11.addConstraint(Sketcher.Constraint("Horizontal", 4))
sketch11.addConstraint(Sketcher.Constraint("Vertical", 5))
sketch11.addConstraint(Sketcher.Constraint("Horizontal", 6))
sketch11.addConstraint(Sketcher.Constraint("Vertical", 7))
sketch11.addConstraint(Sketcher.Constraint("Symmetric", 0, 2, 2, 2, -1, 1))
sketch11.addConstraint(Sketcher.Constraint("DistanceX", 1, 2, 1, 1, 382.23))
sketch11.addConstraint(Sketcher.Constraint("DistanceY", 0, 2, 0, 1, 308.826))
sketch11.addConstraint(Sketcher.Constraint("DistanceX", 4, 1, 4, 2, 133.096409))
sketch11.addConstraint(Sketcher.Constraint("DistanceY", 5, 1, 5, 2, 80.832743))
sketch11.addConstraint(Sketcher.Constraint("DistanceX", 4, 2, -1, 1, 18.870521))
sketch11.addConstraint(Sketcher.Constraint("DistanceY", -1, 1, 5, 2, 56.36827))
pocket4 = body.newObject("PartDesign::Pocket", "Pocket003")
pocket4.Profile = sketch11
pocket4.Type = "ThroughAll"
pocket4.Reversed = True
doc.recompute()

fillet3 = body.newObject("PartDesign::Fillet", "Fillet002")
fillet3.Base = (pocket4, edges_at(pocket4, [
    (-18.871, 56.368, -1.587),
    (-151.967, 56.368, -1.587),
    (-151.967, -24.464, -1.587),
    (-18.871, -24.464, -1.587),
]))
fillet3.Radius = Q("0.25 in")

doc.recompute()
